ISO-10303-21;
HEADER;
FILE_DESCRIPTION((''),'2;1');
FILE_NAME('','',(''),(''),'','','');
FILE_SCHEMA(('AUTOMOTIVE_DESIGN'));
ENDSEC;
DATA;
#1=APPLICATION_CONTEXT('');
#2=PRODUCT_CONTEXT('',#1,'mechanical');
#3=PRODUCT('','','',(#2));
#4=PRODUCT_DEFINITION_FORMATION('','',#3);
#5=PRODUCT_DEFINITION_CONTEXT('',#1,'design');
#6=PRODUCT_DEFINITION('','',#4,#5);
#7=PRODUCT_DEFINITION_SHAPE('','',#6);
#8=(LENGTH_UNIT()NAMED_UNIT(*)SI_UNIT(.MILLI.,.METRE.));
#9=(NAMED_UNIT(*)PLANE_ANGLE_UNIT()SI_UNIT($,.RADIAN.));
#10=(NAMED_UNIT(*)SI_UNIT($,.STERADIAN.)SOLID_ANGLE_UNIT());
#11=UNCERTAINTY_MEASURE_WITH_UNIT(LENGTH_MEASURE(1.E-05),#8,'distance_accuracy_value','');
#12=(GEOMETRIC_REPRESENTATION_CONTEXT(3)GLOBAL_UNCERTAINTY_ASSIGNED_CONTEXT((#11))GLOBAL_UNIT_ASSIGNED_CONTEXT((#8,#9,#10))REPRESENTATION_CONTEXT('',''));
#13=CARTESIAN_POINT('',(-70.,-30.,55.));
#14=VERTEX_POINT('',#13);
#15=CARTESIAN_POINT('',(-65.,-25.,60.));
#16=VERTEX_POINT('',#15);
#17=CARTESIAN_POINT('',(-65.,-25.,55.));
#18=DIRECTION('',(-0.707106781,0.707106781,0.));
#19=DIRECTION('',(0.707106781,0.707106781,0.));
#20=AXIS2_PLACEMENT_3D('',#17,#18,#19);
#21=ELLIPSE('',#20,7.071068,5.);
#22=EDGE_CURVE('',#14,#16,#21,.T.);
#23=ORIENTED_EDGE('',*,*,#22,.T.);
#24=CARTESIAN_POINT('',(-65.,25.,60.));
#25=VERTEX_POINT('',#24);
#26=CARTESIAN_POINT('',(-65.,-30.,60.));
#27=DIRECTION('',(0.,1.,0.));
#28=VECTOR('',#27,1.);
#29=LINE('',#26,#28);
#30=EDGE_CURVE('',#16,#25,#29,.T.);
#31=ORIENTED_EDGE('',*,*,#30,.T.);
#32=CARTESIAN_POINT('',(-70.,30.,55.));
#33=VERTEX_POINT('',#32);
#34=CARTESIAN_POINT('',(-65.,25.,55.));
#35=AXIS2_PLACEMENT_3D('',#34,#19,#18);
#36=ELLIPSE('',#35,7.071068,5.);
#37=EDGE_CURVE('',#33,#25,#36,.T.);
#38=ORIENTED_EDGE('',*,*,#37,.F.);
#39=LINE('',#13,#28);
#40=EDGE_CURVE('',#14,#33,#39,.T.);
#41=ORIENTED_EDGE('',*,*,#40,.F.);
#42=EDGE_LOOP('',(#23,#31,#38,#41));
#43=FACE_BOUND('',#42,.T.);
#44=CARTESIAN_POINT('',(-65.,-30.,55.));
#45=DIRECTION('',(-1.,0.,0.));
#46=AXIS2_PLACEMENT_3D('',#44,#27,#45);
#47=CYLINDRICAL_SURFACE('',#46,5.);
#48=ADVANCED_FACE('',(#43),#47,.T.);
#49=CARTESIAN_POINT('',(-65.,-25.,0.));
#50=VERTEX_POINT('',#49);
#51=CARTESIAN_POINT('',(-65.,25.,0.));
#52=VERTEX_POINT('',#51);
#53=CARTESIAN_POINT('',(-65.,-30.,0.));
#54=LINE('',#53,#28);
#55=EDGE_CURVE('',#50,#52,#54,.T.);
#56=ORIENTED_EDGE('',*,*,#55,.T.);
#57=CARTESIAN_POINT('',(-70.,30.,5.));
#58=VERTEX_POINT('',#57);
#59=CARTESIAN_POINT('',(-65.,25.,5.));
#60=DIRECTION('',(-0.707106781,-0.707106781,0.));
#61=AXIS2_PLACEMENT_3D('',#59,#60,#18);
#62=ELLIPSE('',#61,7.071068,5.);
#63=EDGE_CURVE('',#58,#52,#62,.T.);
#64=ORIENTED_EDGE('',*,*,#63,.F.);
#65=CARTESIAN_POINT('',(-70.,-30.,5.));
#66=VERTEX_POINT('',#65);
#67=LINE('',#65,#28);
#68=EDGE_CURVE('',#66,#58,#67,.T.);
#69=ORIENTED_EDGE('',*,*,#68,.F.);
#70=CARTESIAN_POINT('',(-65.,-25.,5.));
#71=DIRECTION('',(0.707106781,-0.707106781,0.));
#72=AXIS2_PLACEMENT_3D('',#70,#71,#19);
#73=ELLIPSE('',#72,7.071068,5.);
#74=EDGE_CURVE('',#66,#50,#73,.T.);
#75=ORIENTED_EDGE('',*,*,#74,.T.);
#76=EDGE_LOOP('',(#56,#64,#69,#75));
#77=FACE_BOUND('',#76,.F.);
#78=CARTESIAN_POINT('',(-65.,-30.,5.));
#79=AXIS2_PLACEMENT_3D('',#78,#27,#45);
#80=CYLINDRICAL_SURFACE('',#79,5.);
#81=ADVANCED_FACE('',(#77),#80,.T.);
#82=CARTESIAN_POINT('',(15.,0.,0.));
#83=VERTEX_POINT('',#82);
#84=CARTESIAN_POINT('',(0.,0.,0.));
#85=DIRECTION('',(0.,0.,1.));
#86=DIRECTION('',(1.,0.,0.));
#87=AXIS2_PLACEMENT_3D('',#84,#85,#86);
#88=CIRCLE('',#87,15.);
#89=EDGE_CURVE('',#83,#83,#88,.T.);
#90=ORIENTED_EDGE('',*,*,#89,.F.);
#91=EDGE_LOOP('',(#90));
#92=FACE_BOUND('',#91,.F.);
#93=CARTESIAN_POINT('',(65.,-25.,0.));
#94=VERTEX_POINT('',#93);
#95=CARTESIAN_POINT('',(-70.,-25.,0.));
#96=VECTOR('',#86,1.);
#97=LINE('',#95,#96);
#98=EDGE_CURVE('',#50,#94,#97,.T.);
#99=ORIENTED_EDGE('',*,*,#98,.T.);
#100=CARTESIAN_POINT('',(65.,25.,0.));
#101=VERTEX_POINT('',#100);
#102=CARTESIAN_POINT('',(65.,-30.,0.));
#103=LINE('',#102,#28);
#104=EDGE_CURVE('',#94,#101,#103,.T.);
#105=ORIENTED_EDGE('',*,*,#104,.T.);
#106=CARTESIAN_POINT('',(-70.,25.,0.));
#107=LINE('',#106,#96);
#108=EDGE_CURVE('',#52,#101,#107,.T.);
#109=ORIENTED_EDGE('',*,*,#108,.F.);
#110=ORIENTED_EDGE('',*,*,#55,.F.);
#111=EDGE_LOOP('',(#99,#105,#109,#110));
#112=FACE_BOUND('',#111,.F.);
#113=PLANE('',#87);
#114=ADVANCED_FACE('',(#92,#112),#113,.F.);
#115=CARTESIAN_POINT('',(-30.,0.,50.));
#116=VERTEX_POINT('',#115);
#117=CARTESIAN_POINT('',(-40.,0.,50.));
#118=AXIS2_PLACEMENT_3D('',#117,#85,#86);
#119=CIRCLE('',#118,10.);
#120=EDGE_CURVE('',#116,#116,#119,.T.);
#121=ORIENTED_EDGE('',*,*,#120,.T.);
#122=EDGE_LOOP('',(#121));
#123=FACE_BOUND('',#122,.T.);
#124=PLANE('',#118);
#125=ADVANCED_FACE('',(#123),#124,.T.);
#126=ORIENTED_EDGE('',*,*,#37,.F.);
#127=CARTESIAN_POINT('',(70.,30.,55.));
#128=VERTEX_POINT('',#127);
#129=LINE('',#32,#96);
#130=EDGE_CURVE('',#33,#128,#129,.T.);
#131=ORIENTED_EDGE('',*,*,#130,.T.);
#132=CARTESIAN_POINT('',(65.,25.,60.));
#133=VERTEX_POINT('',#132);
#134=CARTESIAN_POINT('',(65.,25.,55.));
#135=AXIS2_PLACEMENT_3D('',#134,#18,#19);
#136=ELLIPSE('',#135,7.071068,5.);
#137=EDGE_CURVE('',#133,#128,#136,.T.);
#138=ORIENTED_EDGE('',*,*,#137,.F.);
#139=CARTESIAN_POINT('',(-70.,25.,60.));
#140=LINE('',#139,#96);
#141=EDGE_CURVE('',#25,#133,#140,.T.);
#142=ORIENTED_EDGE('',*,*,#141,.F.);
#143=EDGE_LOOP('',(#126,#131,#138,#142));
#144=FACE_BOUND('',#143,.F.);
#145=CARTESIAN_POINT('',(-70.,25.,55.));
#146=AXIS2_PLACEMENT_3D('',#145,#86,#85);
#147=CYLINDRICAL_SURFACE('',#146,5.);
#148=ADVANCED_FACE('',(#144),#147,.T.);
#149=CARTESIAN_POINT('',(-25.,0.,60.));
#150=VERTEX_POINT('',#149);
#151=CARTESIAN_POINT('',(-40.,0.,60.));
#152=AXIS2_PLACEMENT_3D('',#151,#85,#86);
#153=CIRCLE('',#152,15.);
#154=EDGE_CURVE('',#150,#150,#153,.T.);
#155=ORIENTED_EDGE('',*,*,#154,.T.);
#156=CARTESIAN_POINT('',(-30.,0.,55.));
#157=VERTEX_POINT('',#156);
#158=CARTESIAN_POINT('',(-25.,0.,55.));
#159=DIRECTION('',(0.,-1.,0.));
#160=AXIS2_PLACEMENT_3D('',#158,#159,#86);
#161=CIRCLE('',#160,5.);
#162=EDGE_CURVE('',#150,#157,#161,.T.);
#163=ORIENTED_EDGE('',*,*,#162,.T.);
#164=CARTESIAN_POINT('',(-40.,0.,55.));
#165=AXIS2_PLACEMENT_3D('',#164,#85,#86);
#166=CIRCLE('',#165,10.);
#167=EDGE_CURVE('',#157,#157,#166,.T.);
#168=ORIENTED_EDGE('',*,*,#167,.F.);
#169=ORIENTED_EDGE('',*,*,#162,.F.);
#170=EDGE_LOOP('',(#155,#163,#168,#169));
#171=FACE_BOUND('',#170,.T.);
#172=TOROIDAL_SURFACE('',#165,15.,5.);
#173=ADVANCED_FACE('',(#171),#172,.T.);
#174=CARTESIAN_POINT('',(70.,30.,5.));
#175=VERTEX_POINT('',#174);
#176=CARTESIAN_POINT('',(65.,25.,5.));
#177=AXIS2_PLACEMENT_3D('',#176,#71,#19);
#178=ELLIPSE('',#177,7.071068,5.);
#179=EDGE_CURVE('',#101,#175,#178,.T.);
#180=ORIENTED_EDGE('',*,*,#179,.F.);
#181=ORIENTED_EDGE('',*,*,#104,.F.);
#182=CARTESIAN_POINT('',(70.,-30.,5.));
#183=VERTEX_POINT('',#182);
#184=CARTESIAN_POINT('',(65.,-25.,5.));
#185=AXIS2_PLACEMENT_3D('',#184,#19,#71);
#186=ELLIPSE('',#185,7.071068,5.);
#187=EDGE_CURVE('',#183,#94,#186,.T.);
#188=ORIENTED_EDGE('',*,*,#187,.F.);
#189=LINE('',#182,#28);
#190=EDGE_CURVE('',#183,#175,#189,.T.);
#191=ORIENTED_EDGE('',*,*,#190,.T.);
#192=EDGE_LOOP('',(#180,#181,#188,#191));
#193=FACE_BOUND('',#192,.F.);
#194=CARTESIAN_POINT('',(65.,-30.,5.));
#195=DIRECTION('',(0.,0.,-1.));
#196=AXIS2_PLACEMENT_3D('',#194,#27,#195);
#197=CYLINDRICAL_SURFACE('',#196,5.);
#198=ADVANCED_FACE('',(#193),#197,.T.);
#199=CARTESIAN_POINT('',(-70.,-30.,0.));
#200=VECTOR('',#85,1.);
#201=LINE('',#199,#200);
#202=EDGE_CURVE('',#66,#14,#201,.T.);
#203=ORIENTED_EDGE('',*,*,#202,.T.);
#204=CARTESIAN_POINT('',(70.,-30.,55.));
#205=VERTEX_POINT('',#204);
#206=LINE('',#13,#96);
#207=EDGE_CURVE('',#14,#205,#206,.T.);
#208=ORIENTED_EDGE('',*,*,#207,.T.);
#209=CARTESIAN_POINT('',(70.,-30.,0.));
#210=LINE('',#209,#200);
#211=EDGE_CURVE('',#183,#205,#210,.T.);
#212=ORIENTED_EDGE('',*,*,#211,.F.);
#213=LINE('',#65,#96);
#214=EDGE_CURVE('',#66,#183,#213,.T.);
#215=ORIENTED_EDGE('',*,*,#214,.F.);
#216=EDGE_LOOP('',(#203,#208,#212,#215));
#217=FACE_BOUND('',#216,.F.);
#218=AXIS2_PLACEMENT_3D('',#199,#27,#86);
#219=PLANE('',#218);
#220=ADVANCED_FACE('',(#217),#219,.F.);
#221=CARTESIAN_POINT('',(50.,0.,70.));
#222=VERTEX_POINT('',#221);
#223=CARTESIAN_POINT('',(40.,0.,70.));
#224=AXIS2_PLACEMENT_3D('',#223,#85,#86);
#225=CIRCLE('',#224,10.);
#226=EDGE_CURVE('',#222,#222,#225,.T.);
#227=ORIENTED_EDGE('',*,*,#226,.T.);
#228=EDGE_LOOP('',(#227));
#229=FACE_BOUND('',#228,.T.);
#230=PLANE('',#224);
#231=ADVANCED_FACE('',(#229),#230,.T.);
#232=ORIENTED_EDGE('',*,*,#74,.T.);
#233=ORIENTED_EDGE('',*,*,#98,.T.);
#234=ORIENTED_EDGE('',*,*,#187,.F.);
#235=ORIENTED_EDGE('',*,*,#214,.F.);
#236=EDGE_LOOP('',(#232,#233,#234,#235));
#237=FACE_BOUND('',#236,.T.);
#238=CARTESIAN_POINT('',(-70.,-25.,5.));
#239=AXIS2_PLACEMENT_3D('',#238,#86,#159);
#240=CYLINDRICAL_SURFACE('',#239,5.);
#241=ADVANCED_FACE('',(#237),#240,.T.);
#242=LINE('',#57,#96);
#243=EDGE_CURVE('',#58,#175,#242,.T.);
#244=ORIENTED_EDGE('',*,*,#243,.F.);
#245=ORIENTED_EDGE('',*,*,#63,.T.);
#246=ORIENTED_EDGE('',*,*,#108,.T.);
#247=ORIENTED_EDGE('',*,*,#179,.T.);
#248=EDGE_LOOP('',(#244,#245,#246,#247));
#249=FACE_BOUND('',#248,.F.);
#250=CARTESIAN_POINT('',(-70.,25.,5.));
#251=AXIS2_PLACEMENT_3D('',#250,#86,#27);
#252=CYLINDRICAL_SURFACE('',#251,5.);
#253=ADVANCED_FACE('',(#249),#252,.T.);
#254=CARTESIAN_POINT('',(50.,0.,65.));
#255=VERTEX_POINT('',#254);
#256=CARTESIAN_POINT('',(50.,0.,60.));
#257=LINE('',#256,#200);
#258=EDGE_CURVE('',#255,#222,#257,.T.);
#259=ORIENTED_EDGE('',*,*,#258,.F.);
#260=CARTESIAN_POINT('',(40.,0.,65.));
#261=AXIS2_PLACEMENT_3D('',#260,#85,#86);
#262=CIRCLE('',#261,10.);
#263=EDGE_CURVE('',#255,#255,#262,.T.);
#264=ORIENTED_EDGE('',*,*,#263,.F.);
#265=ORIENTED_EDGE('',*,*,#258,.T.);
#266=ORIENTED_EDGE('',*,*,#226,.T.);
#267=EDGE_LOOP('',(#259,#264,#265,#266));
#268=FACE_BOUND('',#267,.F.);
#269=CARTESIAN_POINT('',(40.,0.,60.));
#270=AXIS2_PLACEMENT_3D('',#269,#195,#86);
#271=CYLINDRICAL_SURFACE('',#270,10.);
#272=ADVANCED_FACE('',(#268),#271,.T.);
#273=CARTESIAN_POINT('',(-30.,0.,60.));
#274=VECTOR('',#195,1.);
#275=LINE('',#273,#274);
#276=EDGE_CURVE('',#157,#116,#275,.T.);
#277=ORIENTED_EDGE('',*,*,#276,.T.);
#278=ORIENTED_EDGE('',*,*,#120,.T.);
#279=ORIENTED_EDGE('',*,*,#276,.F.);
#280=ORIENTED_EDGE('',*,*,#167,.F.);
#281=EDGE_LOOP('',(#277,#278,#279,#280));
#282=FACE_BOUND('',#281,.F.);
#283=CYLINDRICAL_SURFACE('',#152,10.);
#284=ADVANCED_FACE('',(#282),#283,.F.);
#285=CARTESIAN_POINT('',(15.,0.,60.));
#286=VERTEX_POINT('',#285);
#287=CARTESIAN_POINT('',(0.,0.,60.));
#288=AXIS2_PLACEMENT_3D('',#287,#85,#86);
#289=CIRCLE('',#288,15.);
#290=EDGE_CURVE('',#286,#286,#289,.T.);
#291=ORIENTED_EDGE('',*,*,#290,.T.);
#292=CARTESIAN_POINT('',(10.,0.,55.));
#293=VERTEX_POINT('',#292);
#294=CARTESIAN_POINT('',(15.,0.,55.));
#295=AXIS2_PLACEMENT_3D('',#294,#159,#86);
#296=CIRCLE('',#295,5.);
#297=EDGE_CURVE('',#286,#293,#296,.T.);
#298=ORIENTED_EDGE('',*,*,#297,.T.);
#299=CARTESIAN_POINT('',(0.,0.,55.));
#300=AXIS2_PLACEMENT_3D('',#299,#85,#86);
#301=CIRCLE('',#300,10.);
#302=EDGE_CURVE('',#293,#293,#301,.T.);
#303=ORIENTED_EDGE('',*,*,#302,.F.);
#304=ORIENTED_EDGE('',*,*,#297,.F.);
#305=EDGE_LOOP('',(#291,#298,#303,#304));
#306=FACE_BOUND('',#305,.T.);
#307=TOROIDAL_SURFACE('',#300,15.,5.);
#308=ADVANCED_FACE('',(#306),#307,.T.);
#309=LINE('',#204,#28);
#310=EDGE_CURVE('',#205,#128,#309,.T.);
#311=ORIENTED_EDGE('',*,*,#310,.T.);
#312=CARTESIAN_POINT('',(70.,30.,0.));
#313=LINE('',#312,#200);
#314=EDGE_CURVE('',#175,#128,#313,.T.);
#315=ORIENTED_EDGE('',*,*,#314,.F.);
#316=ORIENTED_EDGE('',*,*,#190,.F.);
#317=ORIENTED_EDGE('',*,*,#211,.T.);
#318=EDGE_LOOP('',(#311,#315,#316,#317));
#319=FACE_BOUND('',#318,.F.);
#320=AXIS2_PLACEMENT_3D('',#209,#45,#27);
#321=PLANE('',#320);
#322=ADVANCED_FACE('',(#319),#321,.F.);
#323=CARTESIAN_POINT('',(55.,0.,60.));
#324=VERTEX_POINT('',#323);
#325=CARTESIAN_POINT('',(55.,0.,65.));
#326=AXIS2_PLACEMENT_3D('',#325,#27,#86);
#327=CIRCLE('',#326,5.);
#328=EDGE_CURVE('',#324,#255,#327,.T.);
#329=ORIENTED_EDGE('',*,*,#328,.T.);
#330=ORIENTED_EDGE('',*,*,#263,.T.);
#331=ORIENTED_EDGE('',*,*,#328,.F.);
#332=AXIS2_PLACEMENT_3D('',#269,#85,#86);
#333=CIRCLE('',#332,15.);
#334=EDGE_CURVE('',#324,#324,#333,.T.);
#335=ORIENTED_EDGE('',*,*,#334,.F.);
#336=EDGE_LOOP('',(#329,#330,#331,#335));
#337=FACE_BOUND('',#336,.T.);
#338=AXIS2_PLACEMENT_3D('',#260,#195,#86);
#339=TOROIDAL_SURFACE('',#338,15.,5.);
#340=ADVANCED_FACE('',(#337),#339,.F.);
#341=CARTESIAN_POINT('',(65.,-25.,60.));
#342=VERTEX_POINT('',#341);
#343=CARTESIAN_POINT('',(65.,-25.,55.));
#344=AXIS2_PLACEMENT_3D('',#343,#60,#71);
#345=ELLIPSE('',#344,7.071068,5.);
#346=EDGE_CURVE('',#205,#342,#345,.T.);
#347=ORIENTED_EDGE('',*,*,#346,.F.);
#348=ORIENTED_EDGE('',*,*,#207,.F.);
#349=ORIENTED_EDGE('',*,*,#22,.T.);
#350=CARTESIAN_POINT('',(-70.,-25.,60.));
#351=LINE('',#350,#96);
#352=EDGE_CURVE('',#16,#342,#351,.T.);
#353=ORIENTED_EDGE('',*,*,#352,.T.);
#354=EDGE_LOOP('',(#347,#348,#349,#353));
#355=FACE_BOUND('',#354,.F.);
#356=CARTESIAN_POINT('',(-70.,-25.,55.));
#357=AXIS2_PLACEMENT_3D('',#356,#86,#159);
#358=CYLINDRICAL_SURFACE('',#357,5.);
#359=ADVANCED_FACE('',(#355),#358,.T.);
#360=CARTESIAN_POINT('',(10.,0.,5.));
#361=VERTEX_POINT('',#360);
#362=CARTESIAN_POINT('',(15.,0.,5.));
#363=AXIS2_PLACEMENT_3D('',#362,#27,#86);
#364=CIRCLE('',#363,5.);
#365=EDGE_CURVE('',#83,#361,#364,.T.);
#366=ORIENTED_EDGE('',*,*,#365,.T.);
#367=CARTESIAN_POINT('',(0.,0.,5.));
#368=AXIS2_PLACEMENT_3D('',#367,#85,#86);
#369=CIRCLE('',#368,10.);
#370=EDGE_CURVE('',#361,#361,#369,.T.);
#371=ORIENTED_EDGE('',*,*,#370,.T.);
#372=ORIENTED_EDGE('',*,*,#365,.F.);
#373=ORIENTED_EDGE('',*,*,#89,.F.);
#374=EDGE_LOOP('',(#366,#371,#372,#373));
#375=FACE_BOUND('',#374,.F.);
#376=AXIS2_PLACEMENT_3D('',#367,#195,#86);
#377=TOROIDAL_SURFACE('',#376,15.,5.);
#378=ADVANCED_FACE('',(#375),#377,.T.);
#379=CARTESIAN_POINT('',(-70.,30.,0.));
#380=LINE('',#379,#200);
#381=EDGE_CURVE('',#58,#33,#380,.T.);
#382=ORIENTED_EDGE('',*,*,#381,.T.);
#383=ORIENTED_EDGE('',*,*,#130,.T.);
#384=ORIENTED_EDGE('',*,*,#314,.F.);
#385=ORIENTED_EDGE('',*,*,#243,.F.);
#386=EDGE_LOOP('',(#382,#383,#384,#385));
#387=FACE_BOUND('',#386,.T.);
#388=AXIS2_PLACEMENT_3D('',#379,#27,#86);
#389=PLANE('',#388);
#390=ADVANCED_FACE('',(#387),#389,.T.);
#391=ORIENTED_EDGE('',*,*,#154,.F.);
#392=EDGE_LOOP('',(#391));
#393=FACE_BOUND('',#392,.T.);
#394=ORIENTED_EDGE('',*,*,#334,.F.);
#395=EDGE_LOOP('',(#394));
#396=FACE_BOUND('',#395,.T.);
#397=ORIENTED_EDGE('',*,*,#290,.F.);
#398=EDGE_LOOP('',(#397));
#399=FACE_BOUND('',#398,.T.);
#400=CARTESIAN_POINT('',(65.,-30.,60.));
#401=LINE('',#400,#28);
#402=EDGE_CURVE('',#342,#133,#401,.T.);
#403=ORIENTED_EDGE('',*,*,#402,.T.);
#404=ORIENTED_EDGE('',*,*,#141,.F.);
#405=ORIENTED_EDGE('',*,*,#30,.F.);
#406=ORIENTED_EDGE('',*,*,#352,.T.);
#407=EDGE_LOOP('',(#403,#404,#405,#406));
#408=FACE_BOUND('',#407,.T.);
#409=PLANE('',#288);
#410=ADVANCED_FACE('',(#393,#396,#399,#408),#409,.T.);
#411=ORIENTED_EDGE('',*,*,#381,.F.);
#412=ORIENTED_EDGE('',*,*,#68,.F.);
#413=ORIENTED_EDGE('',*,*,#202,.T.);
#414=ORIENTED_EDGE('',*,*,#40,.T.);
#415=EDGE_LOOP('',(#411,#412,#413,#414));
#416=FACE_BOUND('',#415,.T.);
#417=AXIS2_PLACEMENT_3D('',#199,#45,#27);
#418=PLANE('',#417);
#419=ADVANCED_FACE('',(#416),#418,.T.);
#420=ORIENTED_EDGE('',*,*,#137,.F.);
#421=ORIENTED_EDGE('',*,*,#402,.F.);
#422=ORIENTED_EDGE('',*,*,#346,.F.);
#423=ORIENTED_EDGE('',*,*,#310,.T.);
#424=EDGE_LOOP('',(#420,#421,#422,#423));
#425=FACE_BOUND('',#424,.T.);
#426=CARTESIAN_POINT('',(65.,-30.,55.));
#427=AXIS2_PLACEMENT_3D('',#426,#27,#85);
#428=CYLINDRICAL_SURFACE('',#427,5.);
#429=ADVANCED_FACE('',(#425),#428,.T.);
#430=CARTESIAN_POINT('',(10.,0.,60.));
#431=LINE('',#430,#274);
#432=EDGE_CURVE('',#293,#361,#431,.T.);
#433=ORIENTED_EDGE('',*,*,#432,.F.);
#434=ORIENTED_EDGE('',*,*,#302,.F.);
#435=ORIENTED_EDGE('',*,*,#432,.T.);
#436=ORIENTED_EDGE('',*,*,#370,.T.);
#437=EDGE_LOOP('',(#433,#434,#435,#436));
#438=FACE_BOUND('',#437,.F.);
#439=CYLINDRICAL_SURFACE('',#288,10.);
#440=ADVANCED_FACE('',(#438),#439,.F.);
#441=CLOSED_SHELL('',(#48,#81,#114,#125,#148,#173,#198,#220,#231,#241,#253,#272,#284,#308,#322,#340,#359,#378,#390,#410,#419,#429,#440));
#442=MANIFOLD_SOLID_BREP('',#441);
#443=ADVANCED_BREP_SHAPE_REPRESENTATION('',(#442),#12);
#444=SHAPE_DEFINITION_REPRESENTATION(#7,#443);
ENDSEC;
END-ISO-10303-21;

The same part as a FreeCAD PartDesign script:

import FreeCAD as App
import Part
import Sketcher

V = App.Vector


def edges_at(feature, points):
    """Names of the edges that pass closest to the given points."""
    edges = feature.Shape.Edges
    near = lambda p: min(range(len(edges)), key=lambda i: edges[i].distToShape(Part.Vertex(*p))[0])
    return sorted({f"Edge{near(p) + 1}" for p in points})

doc = App.newDocument("Part")
body = doc.addObject("PartDesign::Body", "Body")

# Sketch on XY plane
sketch1 = body.newObject("Sketcher::SketchObject", "Sketch")
sketch1.AttachmentSupport = (doc.getObject("XY_Plane"), [""])
sketch1.MapMode = "FlatFace"
sketch1.addGeometry(Part.LineSegment(V(-70, 30, 0), V(-70, -30, 0)), False)
sketch1.addGeometry(Part.LineSegment(V(-70, -30, 0), V(70, -30, 0)), False)
sketch1.addGeometry(Part.LineSegment(V(70, -30, 0), V(70, 30, 0)), False)
sketch1.addGeometry(Part.LineSegment(V(70, 30, 0), V(-70, 30, 0)), False)
sketch1.addConstraint(Sketcher.Constraint("Coincident", 0, 2, 1, 1))
sketch1.addConstraint(Sketcher.Constraint("Coincident", 1, 2, 2, 1))
sketch1.addConstraint(Sketcher.Constraint("Coincident", 2, 2, 3, 1))
sketch1.addConstraint(Sketcher.Constraint("Coincident", 3, 2, 0, 1))
sketch1.addConstraint(Sketcher.Constraint("Vertical", 0))
sketch1.addConstraint(Sketcher.Constraint("Horizontal", 1))
sketch1.addConstraint(Sketcher.Constraint("Vertical", 2))
sketch1.addConstraint(Sketcher.Constraint("Horizontal", 3))
sketch1.addConstraint(Sketcher.Constraint("Symmetric", 0, 2, 2, 2, -1, 1))
sketch1.addConstraint(Sketcher.Constraint("DistanceX", 1, 1, 1, 2, 140.0))
sketch1.addConstraint(Sketcher.Constraint("DistanceY", 0, 2, 0, 1, 60.0))
pad1 = body.newObject("PartDesign::Pad", "Pad")
pad1.Profile = sketch1
pad1.Length = 60

# Sketch on XY plane
sketch2 = body.newObject("Sketcher::SketchObject", "Sketch001")
sketch2.AttachmentSupport = (doc.getObject("XY_Plane"), [""])
sketch2.MapMode = "FlatFace"
sketch2.AttachmentOffset = App.Placement(V(0, 0, 60), App.Rotation())
sketch2.addGeometry(Part.Circle(V(40, 0, 0), V(0, 0, 1), 10), False)
sketch2.addConstraint(Sketcher.Constraint("PointOnObject", 0, 3, -1))
sketch2.addConstraint(Sketcher.Constraint("Diameter", 0, 20.0))
sketch2.addConstraint(Sketcher.Constraint("DistanceX", -1, 1, 0, 3, 40.0))
pad2 = body.newObject("PartDesign::Pad", "Pad001")
pad2.Profile = sketch2
pad2.Length = 10

# Sketch on XY plane
sketch3 = body.newObject("Sketcher::SketchObject", "Sketch002")
sketch3.AttachmentSupport = (doc.getObject("XY_Plane"), [""])
sketch3.MapMode = "FlatFace"
sketch3.AttachmentOffset = App.Placement(V(0, 0, 60), App.Rotation())
sketch3.addGeometry(Part.Circle(V(0, 0, 0), V(0, 0, 1), 10), False)
sketch3.addConstraint(Sketcher.Constraint("Coincident", 0, 3, -1, 1))
sketch3.addConstraint(Sketcher.Constraint("Diameter", 0, 20.0))
pocket1 = body.newObject("PartDesign::Pocket", "Pocket")
pocket1.Profile = sketch3
pocket1.Length = 96.3
doc.recompute()

fillet = body.newObject("PartDesign::Fillet", "Fillet")
fillet.Base = (pocket1, edges_at(pocket1, [
    (0, -30, 0),
    (-70, 0, 0),
    (70, 0, 0),
    (0, 30, 0),
    (-10, 0, 0),
]))
fillet.Radius = 5

# Sketch on XY plane
sketch4 = body.newObject("Sketcher::SketchObject", "Sketch003")
sketch4.AttachmentSupport = (doc.getObject("XY_Plane"), [""])
sketch4.MapMode = "FlatFace"
sketch4.AttachmentOffset = App.Placement(V(0, 0, 60), App.Rotation())
sketch4.addGeometry(Part.Circle(V(-40, 0, 0), V(0, 0, 1), 10), False)
sketch4.addConstraint(Sketcher.Constraint("PointOnObject", 0, 3, -1))
sketch4.addConstraint(Sketcher.Constraint("Diameter", 0, 20.0))
sketch4.addConstraint(Sketcher.Constraint("DistanceX", 0, 3, -1, 1, 40.0))
pocket2 = body.newObject("PartDesign::Pocket", "Pocket001")
pocket2.Profile = sketch4
pocket2.Length = 10
doc.recompute()

fillet2 = body.newObject("PartDesign::Fillet", "Fillet001")
fillet2.Base = (pocket2, edges_at(pocket2, [
    (0, -30, 60),
    (-70, 0, 60),
    (70, 0, 60),
    (0, 30, 60),
    (-50, 0, 60),
    (-10, 0, 60),
    (30, 0, 60),
]))
fillet2.Radius = 5

doc.recompute()
